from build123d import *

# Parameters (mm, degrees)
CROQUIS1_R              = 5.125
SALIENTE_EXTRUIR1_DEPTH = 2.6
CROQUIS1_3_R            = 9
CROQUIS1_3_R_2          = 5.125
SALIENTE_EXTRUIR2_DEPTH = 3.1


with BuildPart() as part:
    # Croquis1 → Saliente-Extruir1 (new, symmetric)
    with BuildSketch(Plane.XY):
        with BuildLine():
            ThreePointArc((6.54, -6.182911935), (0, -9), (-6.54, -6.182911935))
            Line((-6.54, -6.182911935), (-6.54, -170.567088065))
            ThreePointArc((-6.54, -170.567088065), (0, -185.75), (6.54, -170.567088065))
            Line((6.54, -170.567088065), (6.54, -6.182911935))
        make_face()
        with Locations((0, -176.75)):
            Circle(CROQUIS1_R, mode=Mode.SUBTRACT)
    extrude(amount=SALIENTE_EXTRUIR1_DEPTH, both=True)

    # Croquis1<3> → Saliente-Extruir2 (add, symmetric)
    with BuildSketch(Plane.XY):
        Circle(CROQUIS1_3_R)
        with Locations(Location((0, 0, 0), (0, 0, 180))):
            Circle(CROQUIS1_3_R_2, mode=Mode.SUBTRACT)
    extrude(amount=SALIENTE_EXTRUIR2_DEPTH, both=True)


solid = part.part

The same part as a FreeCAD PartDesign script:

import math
import FreeCAD as App
import Part
import Sketcher

V = App.Vector
Q = App.Units.Quantity

doc = App.newDocument("Part")
body = doc.addObject("PartDesign::Body", "Body")

# Sketch on XY plane
sketch1 = body.newObject("Sketcher::SketchObject", "Sketch")
sketch1.AttachmentSupport = (doc.getObject("XY_Plane"), [""])
sketch1.MapMode = "FlatFace"
sketch1.addGeometry([
    Part.ArcOfCircle(Part.Circle(V(0, 0, 0), V(0, 0, 1), 9), math.radians(-137), math.radians(-43)),  # 0
    Part.LineSegment(V(-7, -6, 0), V(-7, -171, 0)),  # 1
    Part.ArcOfCircle(Part.Circle(V(0, -177, 0), V(0, 0, 1), 9), math.radians(137), math.radians(403)),  # 2
    Part.LineSegment(V(7, -171, 0), V(7, -6, 0)),  # 3
    Part.Circle(V(0, -177, 0), V(0, 0, 1), 5),  # 4
], False)
sketch1.addConstraint([
    Sketcher.Constraint("Coincident", 0, 1, 1, 1),
    Sketcher.Constraint("Coincident", 1, 2, 2, 1),
    Sketcher.Constraint("Coincident", 2, 2, 3, 1),
    Sketcher.Constraint("Coincident", 3, 2, 0, 2),
    Sketcher.Constraint("Vertical", 1),
    Sketcher.Constraint("Vertical", 3),
    Sketcher.Constraint("Coincident", 0, 3, -1, 1),
    Sketcher.Constraint("Coincident", 4, 3, 2, 3),
    Sketcher.Constraint("Equal", 0, 2),
    Sketcher.Constraint("Symmetric", 1, 2, 2, 2, -2),
    Sketcher.Constraint("Radius", 0, Q("9 mm")),
    Sketcher.Constraint("Diameter", 4, Q("10.25 mm")),
    Sketcher.Constraint("DistanceY", 2, 3, -1, 1, Q("176.75 mm")),
    Sketcher.Constraint("DistanceX", 0, 1, -1, 1, Q("6.54 mm")),
])
pad1 = body.newObject("PartDesign::Pad", "Pad")
pad1.Profile = sketch1
pad1.Length = 5.2
pad1.Midplane = True

# Sketch on XY plane
sketch2 = body.newObject("Sketcher::SketchObject", "Sketch001")
sketch2.AttachmentSupport = (doc.getObject("XY_Plane"), [""])
sketch2.MapMode = "FlatFace"
sketch2.addGeometry([
    Part.Circle(V(0, 0, 0), V(0, 0, 1), 9),
    Part.Circle(V(0, 0, 0), V(0, 0, 1), 5),
], False)
sketch2.addConstraint([
    Sketcher.Constraint("Coincident", 0, 3, -1, 1),
    Sketcher.Constraint("Coincident", 1, 3, -1, 1),
    Sketcher.Constraint("Diameter", 0, Q("18 mm")),
    Sketcher.Constraint("Diameter", 1, Q("10.25 mm")),
])
pad2 = body.newObject("PartDesign::Pad", "Pad001")
pad2.Profile = sketch2
pad2.Length = 6.2
pad2.Midplane = True

doc.recompute()
